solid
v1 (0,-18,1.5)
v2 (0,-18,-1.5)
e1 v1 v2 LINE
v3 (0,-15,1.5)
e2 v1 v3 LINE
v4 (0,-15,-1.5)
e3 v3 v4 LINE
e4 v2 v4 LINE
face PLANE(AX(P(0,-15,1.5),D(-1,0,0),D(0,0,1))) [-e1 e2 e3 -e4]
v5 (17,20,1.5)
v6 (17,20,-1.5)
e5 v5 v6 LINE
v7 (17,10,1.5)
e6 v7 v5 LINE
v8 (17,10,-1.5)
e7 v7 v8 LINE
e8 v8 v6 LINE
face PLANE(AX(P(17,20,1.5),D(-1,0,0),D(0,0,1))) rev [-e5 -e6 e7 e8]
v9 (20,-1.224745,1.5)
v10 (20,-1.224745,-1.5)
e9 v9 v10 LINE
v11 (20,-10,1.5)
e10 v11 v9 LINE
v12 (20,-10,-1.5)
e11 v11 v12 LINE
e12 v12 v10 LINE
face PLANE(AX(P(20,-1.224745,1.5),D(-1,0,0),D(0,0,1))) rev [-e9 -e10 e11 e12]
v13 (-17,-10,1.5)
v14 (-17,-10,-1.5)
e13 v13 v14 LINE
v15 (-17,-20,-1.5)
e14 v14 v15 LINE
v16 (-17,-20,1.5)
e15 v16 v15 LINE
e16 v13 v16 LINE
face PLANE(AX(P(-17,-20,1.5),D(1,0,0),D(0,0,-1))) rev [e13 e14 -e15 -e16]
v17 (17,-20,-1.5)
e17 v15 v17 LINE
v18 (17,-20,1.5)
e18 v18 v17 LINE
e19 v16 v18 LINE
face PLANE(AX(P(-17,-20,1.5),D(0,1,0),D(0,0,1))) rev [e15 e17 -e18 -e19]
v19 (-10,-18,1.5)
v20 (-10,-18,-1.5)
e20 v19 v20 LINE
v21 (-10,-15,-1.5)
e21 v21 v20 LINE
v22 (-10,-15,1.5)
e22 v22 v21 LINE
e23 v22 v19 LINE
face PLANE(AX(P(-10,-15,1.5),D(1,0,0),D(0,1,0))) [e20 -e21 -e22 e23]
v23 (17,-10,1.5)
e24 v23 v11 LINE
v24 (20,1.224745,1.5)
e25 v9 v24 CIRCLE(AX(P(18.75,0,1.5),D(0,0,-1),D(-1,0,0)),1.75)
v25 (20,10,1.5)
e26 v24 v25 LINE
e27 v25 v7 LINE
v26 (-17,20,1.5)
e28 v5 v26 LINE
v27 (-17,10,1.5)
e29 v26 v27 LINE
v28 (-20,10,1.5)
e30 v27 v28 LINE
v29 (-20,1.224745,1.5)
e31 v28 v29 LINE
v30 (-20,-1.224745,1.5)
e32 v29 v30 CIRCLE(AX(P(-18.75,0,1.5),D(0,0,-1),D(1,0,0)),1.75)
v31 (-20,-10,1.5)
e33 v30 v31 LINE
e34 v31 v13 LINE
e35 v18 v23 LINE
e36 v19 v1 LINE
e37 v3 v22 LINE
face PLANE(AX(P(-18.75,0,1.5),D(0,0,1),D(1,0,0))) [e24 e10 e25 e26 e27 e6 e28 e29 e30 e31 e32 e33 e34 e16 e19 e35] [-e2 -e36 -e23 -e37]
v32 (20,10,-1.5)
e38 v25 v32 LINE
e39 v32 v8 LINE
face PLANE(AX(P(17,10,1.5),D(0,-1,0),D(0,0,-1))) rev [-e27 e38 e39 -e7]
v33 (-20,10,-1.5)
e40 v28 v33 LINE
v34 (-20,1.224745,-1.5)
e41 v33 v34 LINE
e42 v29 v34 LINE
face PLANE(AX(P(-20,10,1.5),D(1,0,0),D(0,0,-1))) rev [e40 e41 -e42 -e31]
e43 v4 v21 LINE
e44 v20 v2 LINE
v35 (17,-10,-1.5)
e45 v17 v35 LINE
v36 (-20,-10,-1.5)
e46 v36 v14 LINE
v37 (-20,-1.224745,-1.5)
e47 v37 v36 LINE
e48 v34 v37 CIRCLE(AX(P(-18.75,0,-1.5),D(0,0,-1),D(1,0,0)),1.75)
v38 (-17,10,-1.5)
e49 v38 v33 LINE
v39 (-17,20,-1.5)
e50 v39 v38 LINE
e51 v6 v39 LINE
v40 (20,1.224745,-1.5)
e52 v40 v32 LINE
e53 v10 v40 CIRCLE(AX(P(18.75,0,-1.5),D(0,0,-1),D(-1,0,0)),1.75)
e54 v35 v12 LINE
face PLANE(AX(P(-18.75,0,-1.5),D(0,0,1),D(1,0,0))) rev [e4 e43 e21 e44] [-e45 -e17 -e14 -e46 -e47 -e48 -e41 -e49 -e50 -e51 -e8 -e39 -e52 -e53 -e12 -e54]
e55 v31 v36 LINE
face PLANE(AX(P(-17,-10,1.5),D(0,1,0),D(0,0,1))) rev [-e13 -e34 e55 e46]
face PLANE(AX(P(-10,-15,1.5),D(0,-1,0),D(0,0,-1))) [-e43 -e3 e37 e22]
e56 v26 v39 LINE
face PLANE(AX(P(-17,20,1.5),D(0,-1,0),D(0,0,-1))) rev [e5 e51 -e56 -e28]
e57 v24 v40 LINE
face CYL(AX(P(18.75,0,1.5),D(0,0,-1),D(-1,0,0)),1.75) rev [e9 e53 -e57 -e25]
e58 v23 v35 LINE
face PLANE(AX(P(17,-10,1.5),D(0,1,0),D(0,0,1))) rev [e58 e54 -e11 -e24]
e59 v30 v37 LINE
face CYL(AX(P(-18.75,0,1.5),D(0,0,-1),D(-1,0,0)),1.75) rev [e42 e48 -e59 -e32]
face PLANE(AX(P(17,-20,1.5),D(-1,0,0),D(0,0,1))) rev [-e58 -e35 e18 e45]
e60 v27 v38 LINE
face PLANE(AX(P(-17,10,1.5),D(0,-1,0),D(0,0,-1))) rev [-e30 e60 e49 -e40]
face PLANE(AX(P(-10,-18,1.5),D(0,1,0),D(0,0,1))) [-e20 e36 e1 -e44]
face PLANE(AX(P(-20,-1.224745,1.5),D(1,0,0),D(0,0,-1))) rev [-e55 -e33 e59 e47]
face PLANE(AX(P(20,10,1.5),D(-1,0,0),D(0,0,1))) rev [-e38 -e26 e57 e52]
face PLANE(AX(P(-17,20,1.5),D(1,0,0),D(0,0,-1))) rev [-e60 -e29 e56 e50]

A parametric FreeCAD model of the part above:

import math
import FreeCAD as App
import Part
import Sketcher


def add_polygon(sketch, points):
    """Adds a closed chain of lines whose ends are joined by coincident constraints."""
    first, n = sketch.GeometryCount, len(points)
    for a, b in zip(points, points[1:] + points[:1]):
        sketch.addGeometry(Part.LineSegment(App.Vector(*a, 0), App.Vector(*b, 0)), False)
    for i in range(n):
        sketch.addConstraint(Sketcher.Constraint("Coincident", first + i, 2, first + (i + 1) % n, 1))

doc = App.newDocument("Part")
body = doc.addObject("PartDesign::Body", "Body")

sketch1 = body.newObject("Sketcher::SketchObject", "Sketch")
sketch1.AttachmentSupport = (doc.getObject("XY_Plane"), [""])
sketch1.MapMode = "FlatFace"
sketch1.addGeometry(Part.LineSegment(App.Vector(17, 20, 0), App.Vector(-17, 20, 0)), False)
sketch1.addGeometry(Part.LineSegment(App.Vector(-17, 20, 0), App.Vector(-17, 10, 0)), False)
sketch1.addGeometry(Part.LineSegment(App.Vector(-17, 10, 0), App.Vector(-20, 10, 0)), False)
sketch1.addGeometry(Part.LineSegment(App.Vector(-20, 10, 0), App.Vector(-20, 1.2, 0)), False)
sketch1.addGeometry(Part.ArcOfCircle(Part.Circle(App.Vector(-18.8, 0, 0), App.Vector(0, 0, 1), 1.8), math.radians(-136), math.radians(136)), False)
sketch1.addGeometry(Part.LineSegment(App.Vector(-20, -1.2, 0), App.Vector(-20, -10, 0)), False)
sketch1.addGeometry(Part.LineSegment(App.Vector(-20, -10, 0), App.Vector(-17, -10, 0)), False)
sketch1.addGeometry(Part.LineSegment(App.Vector(-17, -10, 0), App.Vector(-17, -20, 0)), False)
sketch1.addGeometry(Part.LineSegment(App.Vector(-17, -20, 0), App.Vector(17, -20, 0)), False)
sketch1.addGeometry(Part.LineSegment(App.Vector(17, -20, 0), App.Vector(17, -10, 0)), False)
sketch1.addGeometry(Part.LineSegment(App.Vector(17, -10, 0), App.Vector(20, -10, 0)), False)
sketch1.addGeometry(Part.LineSegment(App.Vector(20, -10, 0), App.Vector(20, -1.2, 0)), False)
sketch1.addGeometry(Part.ArcOfCircle(Part.Circle(App.Vector(18.8, 0, 0), App.Vector(0, 0, 1), 1.8), math.radians(44), math.radians(316)), False)
sketch1.addGeometry(Part.LineSegment(App.Vector(20, 1.2, 0), App.Vector(20, 10, 0)), False)
sketch1.addGeometry(Part.LineSegment(App.Vector(20, 10, 0), App.Vector(17, 10, 0)), False)
sketch1.addGeometry(Part.LineSegment(App.Vector(17, 10, 0), App.Vector(17, 20, 0)), False)
add_polygon(sketch1, [(-10, -18), (-10, -15), (0, -15), (0, -18)])
sketch1.addConstraint([
    Sketcher.Constraint("Coincident", 0, 2, 1, 1),
    Sketcher.Constraint("Coincident", 1, 2, 2, 1),
    Sketcher.Constraint("Coincident", 2, 2, 3, 1),
    Sketcher.Constraint("Coincident", 3, 2, 4, 2),
    Sketcher.Constraint("Coincident", 4, 1, 5, 1),
    Sketcher.Constraint("Coincident", 5, 2, 6, 1),
    Sketcher.Constraint("Coincident", 6, 2, 7, 1),
    Sketcher.Constraint("Coincident", 7, 2, 8, 1),
    Sketcher.Constraint("Coincident", 8, 2, 9, 1),
    Sketcher.Constraint("Coincident", 9, 2, 10, 1),
    Sketcher.Constraint("Coincident", 10, 2, 11, 1),
    Sketcher.Constraint("Coincident", 11, 2, 12, 2),
    Sketcher.Constraint("Coincident", 12, 1, 13, 1),
    Sketcher.Constraint("Coincident", 13, 2, 14, 1),
    Sketcher.Constraint("Coincident", 14, 2, 15, 1),
    Sketcher.Constraint("Coincident", 15, 2, 0, 1),
    Sketcher.Constraint("Horizontal", 0),
    Sketcher.Constraint("Vertical", 1),
    Sketcher.Constraint("Horizontal", 2),
    Sketcher.Constraint("Vertical", 3),
    Sketcher.Constraint("Vertical", 5),
    Sketcher.Constraint("Horizontal", 6),
    Sketcher.Constraint("Vertical", 7),
    Sketcher.Constraint("Horizontal", 8),
    Sketcher.Constraint("Vertical", 9),
    Sketcher.Constraint("Horizontal", 10),
    Sketcher.Constraint("Vertical", 11),
    Sketcher.Constraint("Vertical", 13),
    Sketcher.Constraint("Horizontal", 14),
    Sketcher.Constraint("Vertical", 15),
    Sketcher.Constraint("Vertical", 16),
    Sketcher.Constraint("Horizontal", 17),
    Sketcher.Constraint("Vertical", 18),
    Sketcher.Constraint("Horizontal", 19),
    Sketcher.Constraint("Equal", 4, 12),
    Sketcher.Constraint("Symmetric", 4, 3, 12, 3, -1, 1),
    Sketcher.Constraint("Symmetric", 0, 2, 8, 2, -1, 1),
    Sketcher.Constraint("Symmetric", 2, 2, 10, 2, -1, 1),
    Sketcher.Constraint("Symmetric", 5, 2, 13, 2, -1, 1),
    Sketcher.Constraint("Symmetric", 6, 2, 9, 2, -2),
    Sketcher.Constraint("Symmetric", 4, 1, 11, 2, -2),
    Sketcher.Constraint("PointOnObject", 17, 2, -2),
    Sketcher.Constraint("Vertical", 9, 2, 14, 2),
    Sketcher.Constraint("Equal", 19, 1),
    Sketcher.Constraint("Equal", 14, 16),
    Sketcher.Constraint("DistanceX", 0, 2, 0, 1, 34.0),
    Sketcher.Constraint("DistanceX", 2, 2, 2, 1, 3.0),
    Sketcher.Constraint("DistanceX", 17, 1, 17, 2, 10.0),
    Sketcher.Constraint("Radius", 4, 1.75),
    Sketcher.Constraint("DistanceY", -1, 1, 0, 2, 20.0),
    Sketcher.Constraint("DistanceY", 16, 2, -1, 1, 15.0),
    Sketcher.Constraint("DistanceX", 4, 3, 12, 3, 37.5),
])
pad1 = body.newObject("PartDesign::Pad", "Pad")
pad1.Profile = sketch1
pad1.Length = 3
pad1.Midplane = True

doc.recompute()
